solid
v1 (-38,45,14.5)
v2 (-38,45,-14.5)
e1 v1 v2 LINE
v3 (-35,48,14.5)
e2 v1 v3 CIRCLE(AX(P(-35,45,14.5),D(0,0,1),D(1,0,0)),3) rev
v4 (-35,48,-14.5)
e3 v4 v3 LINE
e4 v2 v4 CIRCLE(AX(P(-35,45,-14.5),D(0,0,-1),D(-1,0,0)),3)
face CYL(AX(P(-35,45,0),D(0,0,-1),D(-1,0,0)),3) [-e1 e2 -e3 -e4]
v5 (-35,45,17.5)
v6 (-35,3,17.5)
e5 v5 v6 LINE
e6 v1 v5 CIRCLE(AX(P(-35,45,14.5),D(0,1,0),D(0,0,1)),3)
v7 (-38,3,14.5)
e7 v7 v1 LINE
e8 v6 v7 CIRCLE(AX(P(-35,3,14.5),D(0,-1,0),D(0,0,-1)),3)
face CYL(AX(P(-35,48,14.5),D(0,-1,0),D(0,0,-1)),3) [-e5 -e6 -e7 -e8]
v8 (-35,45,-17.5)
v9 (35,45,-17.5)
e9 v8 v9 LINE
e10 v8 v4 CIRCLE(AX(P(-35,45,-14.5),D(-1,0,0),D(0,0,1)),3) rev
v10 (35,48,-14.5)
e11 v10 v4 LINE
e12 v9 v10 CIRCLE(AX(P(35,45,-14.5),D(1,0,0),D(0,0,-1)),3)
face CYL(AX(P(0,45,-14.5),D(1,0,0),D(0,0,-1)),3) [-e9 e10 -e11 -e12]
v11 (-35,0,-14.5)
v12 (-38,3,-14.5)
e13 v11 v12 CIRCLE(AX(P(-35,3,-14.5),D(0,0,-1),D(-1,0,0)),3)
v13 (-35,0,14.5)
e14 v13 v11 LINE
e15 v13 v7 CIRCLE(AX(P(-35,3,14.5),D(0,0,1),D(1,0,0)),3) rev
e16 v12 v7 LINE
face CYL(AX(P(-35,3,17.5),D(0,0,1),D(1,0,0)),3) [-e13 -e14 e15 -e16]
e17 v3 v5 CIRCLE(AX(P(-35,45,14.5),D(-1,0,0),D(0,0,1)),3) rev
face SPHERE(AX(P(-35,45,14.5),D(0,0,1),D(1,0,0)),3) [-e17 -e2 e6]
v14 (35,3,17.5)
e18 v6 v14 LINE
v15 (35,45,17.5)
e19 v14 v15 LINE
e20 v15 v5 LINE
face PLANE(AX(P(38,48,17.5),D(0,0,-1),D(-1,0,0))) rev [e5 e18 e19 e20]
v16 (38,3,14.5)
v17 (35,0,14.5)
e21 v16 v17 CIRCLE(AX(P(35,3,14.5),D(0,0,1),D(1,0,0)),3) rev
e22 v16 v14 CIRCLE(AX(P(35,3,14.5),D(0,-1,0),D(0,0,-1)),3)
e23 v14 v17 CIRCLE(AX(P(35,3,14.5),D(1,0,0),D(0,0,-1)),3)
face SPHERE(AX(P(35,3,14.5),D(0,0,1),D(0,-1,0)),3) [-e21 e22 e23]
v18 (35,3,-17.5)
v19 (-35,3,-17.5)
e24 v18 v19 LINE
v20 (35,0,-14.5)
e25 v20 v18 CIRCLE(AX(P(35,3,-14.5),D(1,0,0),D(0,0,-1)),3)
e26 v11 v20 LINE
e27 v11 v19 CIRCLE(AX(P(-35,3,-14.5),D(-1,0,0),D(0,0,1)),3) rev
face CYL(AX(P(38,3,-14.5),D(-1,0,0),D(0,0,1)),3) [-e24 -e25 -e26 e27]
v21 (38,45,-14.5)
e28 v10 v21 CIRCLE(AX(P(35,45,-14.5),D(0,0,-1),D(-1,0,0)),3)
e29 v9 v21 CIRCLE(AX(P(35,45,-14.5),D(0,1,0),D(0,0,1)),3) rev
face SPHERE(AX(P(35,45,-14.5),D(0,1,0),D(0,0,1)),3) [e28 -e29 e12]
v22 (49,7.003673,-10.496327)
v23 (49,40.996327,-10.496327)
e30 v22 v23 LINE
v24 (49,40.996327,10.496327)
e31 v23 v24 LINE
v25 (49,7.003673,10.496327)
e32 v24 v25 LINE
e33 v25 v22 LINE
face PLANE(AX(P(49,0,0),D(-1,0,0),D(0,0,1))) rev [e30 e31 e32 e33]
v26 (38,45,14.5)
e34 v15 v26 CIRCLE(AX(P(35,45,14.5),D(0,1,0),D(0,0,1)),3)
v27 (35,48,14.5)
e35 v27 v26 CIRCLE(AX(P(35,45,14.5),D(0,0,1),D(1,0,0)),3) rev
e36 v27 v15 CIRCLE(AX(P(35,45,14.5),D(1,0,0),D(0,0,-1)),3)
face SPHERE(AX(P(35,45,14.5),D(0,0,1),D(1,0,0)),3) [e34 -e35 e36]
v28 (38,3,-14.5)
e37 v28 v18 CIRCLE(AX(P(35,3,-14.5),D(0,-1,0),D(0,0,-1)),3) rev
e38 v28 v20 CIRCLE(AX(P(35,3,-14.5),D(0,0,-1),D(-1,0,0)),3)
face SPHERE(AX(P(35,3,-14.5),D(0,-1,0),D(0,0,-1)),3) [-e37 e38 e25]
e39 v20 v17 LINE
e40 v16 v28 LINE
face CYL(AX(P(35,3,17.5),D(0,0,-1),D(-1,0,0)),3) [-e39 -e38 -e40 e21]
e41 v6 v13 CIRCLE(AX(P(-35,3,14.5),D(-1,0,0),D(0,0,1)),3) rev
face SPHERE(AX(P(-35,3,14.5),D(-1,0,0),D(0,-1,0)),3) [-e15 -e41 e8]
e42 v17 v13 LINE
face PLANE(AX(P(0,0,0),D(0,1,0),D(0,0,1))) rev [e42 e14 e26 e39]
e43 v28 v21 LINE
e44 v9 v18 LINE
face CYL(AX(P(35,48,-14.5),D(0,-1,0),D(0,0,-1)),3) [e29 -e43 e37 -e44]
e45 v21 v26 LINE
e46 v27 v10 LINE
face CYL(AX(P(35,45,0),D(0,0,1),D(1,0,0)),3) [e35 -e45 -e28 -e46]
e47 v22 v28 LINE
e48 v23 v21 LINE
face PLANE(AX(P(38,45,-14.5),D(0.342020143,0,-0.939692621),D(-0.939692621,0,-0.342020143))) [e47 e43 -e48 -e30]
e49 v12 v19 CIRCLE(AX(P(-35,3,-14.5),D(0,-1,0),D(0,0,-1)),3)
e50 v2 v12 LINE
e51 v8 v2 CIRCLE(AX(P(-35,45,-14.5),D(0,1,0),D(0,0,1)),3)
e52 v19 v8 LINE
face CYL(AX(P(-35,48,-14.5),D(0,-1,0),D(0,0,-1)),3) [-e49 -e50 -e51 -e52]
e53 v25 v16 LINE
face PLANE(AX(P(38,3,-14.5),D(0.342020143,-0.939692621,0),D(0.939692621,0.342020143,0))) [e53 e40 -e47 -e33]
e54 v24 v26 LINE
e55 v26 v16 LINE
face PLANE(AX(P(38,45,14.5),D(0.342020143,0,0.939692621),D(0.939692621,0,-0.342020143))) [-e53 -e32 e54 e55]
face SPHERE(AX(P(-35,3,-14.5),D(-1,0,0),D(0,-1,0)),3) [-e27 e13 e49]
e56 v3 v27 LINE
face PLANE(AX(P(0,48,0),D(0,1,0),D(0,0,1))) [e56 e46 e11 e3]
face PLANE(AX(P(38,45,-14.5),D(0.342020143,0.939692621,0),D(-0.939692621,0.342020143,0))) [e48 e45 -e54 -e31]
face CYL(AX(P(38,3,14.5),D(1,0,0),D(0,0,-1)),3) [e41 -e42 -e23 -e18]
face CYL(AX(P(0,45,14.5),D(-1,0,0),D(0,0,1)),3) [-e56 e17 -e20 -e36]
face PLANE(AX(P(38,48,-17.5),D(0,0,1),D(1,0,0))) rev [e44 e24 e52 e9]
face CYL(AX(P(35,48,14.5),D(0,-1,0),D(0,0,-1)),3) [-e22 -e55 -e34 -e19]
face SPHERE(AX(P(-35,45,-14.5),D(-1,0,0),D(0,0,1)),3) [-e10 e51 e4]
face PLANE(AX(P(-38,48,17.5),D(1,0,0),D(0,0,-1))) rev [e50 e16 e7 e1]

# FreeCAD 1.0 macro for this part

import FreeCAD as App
import Part
import Sketcher

V = App.Vector


def add_polygon(sketch, points):
    """Adds a closed chain of lines whose ends are joined by coincident constraints."""
    first, n = sketch.GeometryCount, len(points)
    for a, b in zip(points, points[1:] + points[:1]):
        sketch.addGeometry(Part.LineSegment(App.Vector(*a, 0), App.Vector(*b, 0)), False)
    for i in range(n):
        sketch.addConstraint(Sketcher.Constraint("Coincident", first + i, 2, first + (i + 1) % n, 1))

doc = App.newDocument("Part")
body = doc.addObject("PartDesign::Body", "Body")

# Sketch on XZ plane
sketch1 = body.newObject("Sketcher::SketchObject", "Sketch")
sketch1.AttachmentSupport = (doc.getObject("XZ_Plane"), [""])
sketch1.MapMode = "FlatFace"
add_polygon(sketch1, [(-38, -18), (-38, 18), (38, 18), (38, -18)])  # lines 0-3
sketch1.addConstraint([
    Sketcher.Constraint("Vertical", 0),
    Sketcher.Constraint("Horizontal", 1),
    Sketcher.Constraint("Vertical", 2),
    Sketcher.Constraint("Horizontal", 3),
    Sketcher.Constraint("Symmetric", 0, 2, 2, 2, -1, 1),
    Sketcher.Constraint("DistanceX", 1, 1, 1, 2, 76.0),
    Sketcher.Constraint("DistanceY", 0, 1, 0, 2, 35.0),
])
pad1 = body.newObject("PartDesign::Pad", "Pad")
pad1.Profile = sketch1
pad1.Length = 48
pad1.Reversed = True
doc.recompute()

fillet = body.newObject("PartDesign::Fillet", "Fillet")
fillet.Base = (pad1, ["Edge1"])
fillet.UseAllEdges = True
fillet.Radius = 3

# Sketch on YZ plane
sketch2 = body.newObject("Sketcher::SketchObject", "Sketch001")
sketch2.AttachmentSupport = (doc.getObject("YZ_Plane"), [""])
sketch2.MapMode = "FlatFace"
sketch2.AttachmentOffset = App.Placement(V(0, 0, 38), App.Rotation())
add_polygon(sketch2, [(45, 14), (3, 14), (3, -14), (45, -14)])  # lines 0-3
sketch2.addConstraint([
    Sketcher.Constraint("Horizontal", 0),
    Sketcher.Constraint("Vertical", 1),
    Sketcher.Constraint("Horizontal", 2),
    Sketcher.Constraint("Vertical", 3),
    Sketcher.Constraint("DistanceX", 0, 2, 0, 1, 42.0),
    Sketcher.Constraint("DistanceY", 1, 2, 1, 1, 29.0),
    Sketcher.Constraint("DistanceX", -1, 1, 0, 2, 3.0),
    Sketcher.Constraint("DistanceY", -1, 1, 0, 2, 14.5),
])
pad2 = body.newObject("PartDesign::Pad", "Pad001")
pad2.Profile = sketch2
pad2.Length = 11
pad2.TaperAngle = -20

doc.recompute()
